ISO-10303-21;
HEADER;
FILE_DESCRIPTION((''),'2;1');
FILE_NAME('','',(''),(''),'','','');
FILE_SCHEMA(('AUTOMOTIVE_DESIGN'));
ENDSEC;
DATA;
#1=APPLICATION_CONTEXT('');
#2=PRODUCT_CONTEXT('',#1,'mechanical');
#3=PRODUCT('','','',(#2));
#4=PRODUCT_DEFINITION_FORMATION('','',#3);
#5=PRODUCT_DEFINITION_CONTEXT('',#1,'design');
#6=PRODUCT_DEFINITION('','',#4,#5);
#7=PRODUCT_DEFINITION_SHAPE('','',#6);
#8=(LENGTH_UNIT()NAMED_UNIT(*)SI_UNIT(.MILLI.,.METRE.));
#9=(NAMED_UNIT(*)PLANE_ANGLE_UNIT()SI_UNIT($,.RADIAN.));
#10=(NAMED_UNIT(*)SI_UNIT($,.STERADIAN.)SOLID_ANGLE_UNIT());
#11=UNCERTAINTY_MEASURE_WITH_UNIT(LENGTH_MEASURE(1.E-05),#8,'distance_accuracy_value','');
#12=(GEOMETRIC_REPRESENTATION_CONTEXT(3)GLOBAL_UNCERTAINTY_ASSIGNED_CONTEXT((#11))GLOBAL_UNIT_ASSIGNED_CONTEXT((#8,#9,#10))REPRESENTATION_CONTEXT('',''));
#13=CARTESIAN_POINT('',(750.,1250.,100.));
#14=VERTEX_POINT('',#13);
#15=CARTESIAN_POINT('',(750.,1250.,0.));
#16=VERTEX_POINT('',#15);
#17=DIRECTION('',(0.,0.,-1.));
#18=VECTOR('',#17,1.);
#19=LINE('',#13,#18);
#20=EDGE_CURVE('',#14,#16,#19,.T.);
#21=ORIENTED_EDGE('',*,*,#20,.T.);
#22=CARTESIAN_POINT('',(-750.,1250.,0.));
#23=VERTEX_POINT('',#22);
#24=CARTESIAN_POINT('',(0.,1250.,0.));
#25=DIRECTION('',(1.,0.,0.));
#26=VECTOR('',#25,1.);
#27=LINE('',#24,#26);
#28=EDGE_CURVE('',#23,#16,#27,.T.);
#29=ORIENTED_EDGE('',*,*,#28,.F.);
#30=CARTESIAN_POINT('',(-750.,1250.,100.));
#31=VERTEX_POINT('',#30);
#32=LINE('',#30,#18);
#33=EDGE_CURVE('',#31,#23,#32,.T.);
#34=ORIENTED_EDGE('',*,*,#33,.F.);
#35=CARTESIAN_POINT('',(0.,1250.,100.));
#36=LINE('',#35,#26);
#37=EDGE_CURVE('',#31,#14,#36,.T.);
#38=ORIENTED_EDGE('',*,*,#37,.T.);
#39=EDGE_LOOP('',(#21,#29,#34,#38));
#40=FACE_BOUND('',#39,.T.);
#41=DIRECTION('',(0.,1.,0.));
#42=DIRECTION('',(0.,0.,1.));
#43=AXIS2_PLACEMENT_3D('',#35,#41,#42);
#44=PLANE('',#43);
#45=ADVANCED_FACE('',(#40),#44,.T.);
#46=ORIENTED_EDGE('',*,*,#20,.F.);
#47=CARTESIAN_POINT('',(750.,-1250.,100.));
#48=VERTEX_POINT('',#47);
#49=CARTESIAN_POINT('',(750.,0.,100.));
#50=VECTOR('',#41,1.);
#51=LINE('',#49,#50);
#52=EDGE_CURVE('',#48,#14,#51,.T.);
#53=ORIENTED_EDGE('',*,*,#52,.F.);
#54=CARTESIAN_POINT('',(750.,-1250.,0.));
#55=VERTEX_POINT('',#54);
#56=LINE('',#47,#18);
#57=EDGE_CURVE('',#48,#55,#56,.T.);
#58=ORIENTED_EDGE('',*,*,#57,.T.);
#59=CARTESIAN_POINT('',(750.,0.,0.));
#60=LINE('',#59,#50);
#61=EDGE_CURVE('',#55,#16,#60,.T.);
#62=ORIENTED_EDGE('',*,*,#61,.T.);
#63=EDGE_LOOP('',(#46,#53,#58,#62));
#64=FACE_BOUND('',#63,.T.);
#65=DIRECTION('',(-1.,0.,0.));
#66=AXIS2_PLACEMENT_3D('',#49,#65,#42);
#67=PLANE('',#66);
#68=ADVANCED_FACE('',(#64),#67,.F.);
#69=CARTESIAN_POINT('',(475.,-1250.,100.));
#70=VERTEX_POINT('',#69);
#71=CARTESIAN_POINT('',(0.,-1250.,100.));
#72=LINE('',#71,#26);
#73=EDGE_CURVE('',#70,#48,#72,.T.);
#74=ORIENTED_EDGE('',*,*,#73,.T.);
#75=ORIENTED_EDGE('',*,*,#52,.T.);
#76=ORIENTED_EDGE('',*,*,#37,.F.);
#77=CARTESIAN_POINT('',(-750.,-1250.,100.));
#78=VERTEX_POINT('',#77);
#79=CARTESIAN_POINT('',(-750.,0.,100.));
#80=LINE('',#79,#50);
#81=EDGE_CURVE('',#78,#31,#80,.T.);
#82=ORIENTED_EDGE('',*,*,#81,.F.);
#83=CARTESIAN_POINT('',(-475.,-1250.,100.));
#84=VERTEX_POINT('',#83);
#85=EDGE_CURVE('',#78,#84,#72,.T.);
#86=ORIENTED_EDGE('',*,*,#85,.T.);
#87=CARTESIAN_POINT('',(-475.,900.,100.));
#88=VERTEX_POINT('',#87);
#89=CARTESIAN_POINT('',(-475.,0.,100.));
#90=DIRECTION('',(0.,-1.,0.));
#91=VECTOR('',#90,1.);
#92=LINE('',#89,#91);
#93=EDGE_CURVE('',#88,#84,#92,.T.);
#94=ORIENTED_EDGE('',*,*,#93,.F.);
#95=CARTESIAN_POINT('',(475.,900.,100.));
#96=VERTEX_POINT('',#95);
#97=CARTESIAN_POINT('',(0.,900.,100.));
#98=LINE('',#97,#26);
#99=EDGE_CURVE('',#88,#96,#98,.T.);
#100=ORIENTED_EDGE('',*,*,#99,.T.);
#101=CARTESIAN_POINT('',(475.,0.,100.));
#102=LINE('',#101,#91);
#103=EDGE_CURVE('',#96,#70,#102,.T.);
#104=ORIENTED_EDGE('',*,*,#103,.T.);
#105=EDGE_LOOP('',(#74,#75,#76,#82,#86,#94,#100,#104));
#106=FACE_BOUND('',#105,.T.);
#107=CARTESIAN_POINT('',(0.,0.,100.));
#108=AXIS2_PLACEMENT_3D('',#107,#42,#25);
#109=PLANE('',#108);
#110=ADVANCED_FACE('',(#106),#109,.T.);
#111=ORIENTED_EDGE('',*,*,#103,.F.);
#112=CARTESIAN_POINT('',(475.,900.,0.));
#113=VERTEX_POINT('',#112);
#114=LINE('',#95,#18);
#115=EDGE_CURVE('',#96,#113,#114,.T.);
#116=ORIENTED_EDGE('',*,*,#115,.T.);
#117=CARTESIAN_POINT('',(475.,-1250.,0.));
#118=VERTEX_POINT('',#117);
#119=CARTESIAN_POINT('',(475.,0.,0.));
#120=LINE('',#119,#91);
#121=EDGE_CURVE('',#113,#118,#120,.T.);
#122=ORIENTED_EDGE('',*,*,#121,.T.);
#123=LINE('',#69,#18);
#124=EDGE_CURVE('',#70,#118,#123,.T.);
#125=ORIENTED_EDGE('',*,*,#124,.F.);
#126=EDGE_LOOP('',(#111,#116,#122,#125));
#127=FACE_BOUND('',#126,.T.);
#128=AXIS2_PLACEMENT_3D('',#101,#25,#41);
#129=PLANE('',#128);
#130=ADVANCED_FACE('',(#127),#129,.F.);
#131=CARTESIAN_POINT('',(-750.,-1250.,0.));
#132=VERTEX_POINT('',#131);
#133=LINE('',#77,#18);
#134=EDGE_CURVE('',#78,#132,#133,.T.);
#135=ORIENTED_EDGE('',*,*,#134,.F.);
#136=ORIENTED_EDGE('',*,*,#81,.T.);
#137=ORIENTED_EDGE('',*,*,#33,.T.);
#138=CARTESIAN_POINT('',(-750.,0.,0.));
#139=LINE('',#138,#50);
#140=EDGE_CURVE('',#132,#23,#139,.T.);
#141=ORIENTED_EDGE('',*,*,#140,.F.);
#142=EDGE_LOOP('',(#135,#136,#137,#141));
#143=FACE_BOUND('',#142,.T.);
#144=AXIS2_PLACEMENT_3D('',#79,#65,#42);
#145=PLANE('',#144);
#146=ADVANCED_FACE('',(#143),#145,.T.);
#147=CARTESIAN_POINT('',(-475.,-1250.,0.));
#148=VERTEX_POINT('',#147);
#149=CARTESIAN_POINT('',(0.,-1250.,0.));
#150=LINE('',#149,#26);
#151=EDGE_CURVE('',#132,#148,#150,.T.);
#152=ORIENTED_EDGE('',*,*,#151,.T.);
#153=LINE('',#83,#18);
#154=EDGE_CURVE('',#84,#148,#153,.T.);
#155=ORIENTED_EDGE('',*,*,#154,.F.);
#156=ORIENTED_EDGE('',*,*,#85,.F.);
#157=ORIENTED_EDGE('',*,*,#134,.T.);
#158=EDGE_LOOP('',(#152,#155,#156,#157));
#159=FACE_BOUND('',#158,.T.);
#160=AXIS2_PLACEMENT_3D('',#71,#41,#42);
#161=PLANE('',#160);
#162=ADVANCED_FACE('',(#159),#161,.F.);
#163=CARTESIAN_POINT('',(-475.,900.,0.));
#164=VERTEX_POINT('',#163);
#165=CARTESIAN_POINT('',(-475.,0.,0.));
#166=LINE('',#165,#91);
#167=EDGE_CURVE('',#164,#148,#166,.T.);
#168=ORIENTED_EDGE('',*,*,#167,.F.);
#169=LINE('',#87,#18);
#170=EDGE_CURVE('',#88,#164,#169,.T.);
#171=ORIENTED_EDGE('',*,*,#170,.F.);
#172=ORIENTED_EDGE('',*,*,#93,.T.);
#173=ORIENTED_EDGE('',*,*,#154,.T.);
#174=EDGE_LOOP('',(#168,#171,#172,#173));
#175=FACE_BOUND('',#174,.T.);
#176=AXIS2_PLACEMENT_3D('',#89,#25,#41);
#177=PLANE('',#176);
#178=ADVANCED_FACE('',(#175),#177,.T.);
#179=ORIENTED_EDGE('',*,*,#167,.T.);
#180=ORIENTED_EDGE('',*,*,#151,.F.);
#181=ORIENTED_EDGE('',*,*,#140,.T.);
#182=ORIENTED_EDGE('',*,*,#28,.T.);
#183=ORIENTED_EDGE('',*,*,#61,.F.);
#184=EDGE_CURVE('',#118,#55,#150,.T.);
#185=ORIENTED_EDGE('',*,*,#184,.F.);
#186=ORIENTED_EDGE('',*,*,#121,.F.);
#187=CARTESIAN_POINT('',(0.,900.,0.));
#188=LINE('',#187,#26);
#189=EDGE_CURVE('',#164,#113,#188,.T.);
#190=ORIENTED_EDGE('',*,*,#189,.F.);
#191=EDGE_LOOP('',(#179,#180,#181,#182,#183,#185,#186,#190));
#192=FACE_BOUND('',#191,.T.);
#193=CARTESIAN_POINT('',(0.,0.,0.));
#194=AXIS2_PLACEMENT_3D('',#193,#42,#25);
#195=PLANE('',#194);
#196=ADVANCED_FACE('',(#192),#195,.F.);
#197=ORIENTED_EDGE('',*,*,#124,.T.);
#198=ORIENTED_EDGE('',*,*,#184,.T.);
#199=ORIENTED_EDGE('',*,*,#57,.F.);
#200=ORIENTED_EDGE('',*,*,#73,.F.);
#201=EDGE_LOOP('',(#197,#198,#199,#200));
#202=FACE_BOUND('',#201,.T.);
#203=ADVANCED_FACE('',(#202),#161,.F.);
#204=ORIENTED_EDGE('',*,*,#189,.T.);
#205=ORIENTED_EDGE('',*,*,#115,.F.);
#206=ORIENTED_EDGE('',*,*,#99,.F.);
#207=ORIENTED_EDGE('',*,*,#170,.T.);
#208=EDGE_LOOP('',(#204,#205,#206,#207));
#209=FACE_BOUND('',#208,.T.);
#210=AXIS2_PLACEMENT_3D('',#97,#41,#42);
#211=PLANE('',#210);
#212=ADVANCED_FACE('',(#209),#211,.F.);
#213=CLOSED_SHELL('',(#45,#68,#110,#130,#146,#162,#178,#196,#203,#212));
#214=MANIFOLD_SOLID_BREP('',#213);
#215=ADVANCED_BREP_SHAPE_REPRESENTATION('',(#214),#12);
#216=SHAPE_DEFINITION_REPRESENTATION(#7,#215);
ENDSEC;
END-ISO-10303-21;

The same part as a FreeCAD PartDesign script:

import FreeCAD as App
import Part
import Sketcher

V = App.Vector
Q = App.Units.Quantity

doc = App.newDocument("Part")
body = doc.addObject("PartDesign::Body", "Body")

# Sketch on XY plane
sketch1 = doc.addObject("Sketcher::SketchObject", "Sketch")
body.addObject(sketch1)
sketch1.AttachmentSupport = (doc.XY_Plane, [""])
sketch1.MapMode = "FlatFace"
sketch1.addGeometry(Part.LineSegment(V(-475, -1250, 0), V(-475, 900, 0)), False)
sketch1.addGeometry(Part.LineSegment(V(-475, 900, 0), V(475, 900, 0)), False)
sketch1.addGeometry(Part.LineSegment(V(475, 900, 0), V(475, -1250, 0)), False)
sketch1.addGeometry(Part.LineSegment(V(475, -1250, 0), V(750, -1250, 0)), False)
sketch1.addGeometry(Part.LineSegment(V(750, -1250, 0), V(750, 1250, 0)), False)
sketch1.addGeometry(Part.LineSegment(V(750, 1250, 0), V(-750, 1250, 0)), False)
sketch1.addGeometry(Part.LineSegment(V(-750, 1250, 0), V(-750, -1250, 0)), False)
sketch1.addGeometry(Part.LineSegment(V(-750, -1250, 0), V(-475, -1250, 0)), False)
sketch1.addConstraint(Sketcher.Constraint("Coincident", 0, 2, 1, 1))
sketch1.addConstraint(Sketcher.Constraint("Coincident", 1, 2, 2, 1))
sketch1.addConstraint(Sketcher.Constraint("Coincident", 2, 2, 3, 1))
sketch1.addConstraint(Sketcher.Constraint("Coincident", 3, 2, 4, 1))
sketch1.addConstraint(Sketcher.Constraint("Coincident", 4, 2, 5, 1))
sketch1.addConstraint(Sketcher.Constraint("Coincident", 5, 2, 6, 1))
sketch1.addConstraint(Sketcher.Constraint("Coincident", 6, 2, 7, 1))
sketch1.addConstraint(Sketcher.Constraint("Coincident", 7, 2, 0, 1))
sketch1.addConstraint(Sketcher.Constraint("Vertical", 0))
sketch1.addConstraint(Sketcher.Constraint("Horizontal", 1))
sketch1.addConstraint(Sketcher.Constraint("Vertical", 2))
sketch1.addConstraint(Sketcher.Constraint("Horizontal", 3))
sketch1.addConstraint(Sketcher.Constraint("Vertical", 4))
sketch1.addConstraint(Sketcher.Constraint("Horizontal", 5))
sketch1.addConstraint(Sketcher.Constraint("Vertical", 6))
sketch1.addConstraint(Sketcher.Constraint("Horizontal", 7))
sketch1.addConstraint(Sketcher.Constraint("Symmetric", 3, 2, 5, 2, -1, 1))
sketch1.addConstraint(Sketcher.Constraint("Symmetric", 2, 2, 7, 2, -2))
sketch1.addConstraint(Sketcher.Constraint("DistanceX", 1, 1, 1, 2, Q("950 mm")))
sketch1.addConstraint(Sketcher.Constraint("DistanceX", 3, 1, 3, 2, Q("275 mm")))
sketch1.addConstraint(Sketcher.Constraint("DistanceY", 0, 1, 0, 2, Q("2150 mm")))
sketch1.addConstraint(Sketcher.Constraint("DistanceY", 4, 1, 4, 2, Q("2500 mm")))
pad1 = doc.addObject("PartDesign::Pad", "Pad")
body.addObject(pad1)
pad1.Profile = sketch1
pad1.Length = 100

doc.recompute()
